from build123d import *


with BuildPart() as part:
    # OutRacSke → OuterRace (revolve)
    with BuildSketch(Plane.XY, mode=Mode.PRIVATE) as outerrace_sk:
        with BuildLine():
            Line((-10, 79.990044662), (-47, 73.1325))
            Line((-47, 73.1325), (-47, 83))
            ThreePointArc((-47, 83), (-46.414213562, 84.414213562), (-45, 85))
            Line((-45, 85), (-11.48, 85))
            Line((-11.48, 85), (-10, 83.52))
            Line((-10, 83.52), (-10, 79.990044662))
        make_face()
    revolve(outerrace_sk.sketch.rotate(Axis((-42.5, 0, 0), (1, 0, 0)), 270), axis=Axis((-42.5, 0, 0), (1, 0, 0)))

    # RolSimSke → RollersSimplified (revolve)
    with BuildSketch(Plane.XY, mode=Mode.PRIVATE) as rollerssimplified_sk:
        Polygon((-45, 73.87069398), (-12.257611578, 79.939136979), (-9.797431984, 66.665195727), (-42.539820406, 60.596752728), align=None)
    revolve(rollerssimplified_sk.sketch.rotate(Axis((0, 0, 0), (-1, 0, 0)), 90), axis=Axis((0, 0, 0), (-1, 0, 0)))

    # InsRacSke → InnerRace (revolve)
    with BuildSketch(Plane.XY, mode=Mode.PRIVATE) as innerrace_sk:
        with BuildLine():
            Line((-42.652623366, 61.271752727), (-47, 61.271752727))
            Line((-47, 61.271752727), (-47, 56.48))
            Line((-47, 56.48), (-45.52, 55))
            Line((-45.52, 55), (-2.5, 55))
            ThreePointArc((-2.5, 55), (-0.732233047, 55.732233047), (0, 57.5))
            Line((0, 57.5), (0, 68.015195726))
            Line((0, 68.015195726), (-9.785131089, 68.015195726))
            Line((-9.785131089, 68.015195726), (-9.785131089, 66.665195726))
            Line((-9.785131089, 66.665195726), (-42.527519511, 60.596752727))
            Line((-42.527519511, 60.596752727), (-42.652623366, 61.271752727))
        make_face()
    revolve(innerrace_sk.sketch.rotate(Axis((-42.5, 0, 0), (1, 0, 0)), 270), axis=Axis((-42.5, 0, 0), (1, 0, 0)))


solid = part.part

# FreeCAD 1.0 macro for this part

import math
import FreeCAD as App
import Part
import Sketcher
from FreeCAD import Vector
Q = App.Units.Quantity

doc = App.newDocument("Part")
body = doc.addObject("PartDesign::Body", "Body")

# Sketch on XY plane
sketch1 = body.newObject("Sketcher::SketchObject", "Sketch")
sketch1.AttachmentSupport = (doc.getObject("XY_Plane"), [""])
sketch1.MapMode = "FlatFace"
sketch1.addGeometry([
    Part.LineSegment(Vector(-47, 73.1325, 0), Vector(-10, 79.990045, 0)),  # 0
    Part.LineSegment(Vector(-10, 79.990045, 0), Vector(-10, 83.52, 0)),  # 1
    Part.LineSegment(Vector(-10, 83.52, 0), Vector(-11.48, 85, 0)),  # 2
    Part.LineSegment(Vector(-11.48, 85, 0), Vector(-45, 85, 0)),  # 3
    Part.ArcOfCircle(Part.Circle(Vector(-45, 83, 0), Vector(0, 0, 1), 2), math.radians(90), math.radians(180)),  # 4
    Part.LineSegment(Vector(-47, 83, 0), Vector(-47, 73.1325, 0)),  # 5
], False)
sketch1.addConstraint([
    Sketcher.Constraint("Coincident", 0, 2, 1, 1),
    Sketcher.Constraint("Coincident", 1, 2, 2, 1),
    Sketcher.Constraint("Coincident", 2, 2, 3, 1),
    Sketcher.Constraint("Tangent", 3, 2, 4, 1),
    Sketcher.Constraint("Tangent", 4, 2, 5, 1),
    Sketcher.Constraint("Coincident", 5, 2, 0, 1),
    Sketcher.Constraint("Vertical", 1),
    Sketcher.Constraint("Horizontal", 3),
    Sketcher.Constraint("Vertical", 5),
    Sketcher.Constraint("Radius", 4, Q("2 mm")),
    Sketcher.Constraint("Angle", 2, Q("135 deg")),
    Sketcher.Constraint("DistanceX", 4, 3, -1, 1, Q("45 mm")),
    Sketcher.Constraint("DistanceY", -1, 1, 4, 3, Q("83 mm")),
    Sketcher.Constraint("DistanceX", 0, 2, -1, 1, Q("10 mm")),
    Sketcher.Constraint("Angle", 0, Q("10.5 deg")),
    Sketcher.Constraint("DistanceX", 3, 2, 3, 1, Q("33.52 mm")),
    Sketcher.Constraint("DistanceY", 5, 2, 5, 1, Q("9.8675 mm")),
])
revolution = body.newObject("PartDesign::Revolution", "Revolution")
revolution.Profile = sketch1
revolution.ReferenceAxis = (sketch1, ["H_Axis"])
revolution.Angle = 360

# Sketch on XY plane
sketch2 = body.newObject("Sketcher::SketchObject", "Sketch001")
sketch2.AttachmentSupport = (doc.getObject("XY_Plane"), [""])
sketch2.MapMode = "FlatFace"
sketch2.addGeometry([
    Part.LineSegment(Vector(-12.257612, 79.939137, 0), Vector(-45, 73.870694, 0)),
    Part.LineSegment(Vector(-45, 73.870694, 0), Vector(-42.53982, 60.596753, 0)),
    Part.LineSegment(Vector(-42.53982, 60.596753, 0), Vector(-9.797432, 66.665196, 0)),
    Part.LineSegment(Vector(-9.797432, 66.665196, 0), Vector(-12.257612, 79.939137, 0)),
], False)
sketch2.addConstraint([
    Sketcher.Constraint("Coincident", 0, 2, 1, 1),
    Sketcher.Constraint("Coincident", 1, 2, 2, 1),
    Sketcher.Constraint("Coincident", 2, 2, 3, 1),
    Sketcher.Constraint("Coincident", 3, 2, 0, 1),
    Sketcher.Constraint("Perpendicular", 0, 1),
    Sketcher.Constraint("Perpendicular", 1, 2),
    Sketcher.Constraint("Perpendicular", 2, 3),
    Sketcher.Constraint("DistanceX", 0, 2, -1, 1, Q("45 mm")),
    Sketcher.Constraint("Angle", 0, Q("-169.5 deg")),
    Sketcher.Constraint("Distance", 0, Q("33.3 mm")),
    Sketcher.Constraint("Distance", 1, Q("13.5 mm")),
    Sketcher.Constraint("DistanceY", -1, 1, 0, 2, Q("73.870694 mm")),
])
revolution2 = body.newObject("PartDesign::Revolution", "Revolution001")
revolution2.Profile = sketch2
revolution2.ReferenceAxis = (sketch2, ["H_Axis"])
revolution2.Angle = 360

# Sketch on XY plane
sketch3 = body.newObject("Sketcher::SketchObject", "Sketch002")
sketch3.AttachmentSupport = (doc.getObject("XY_Plane"), [""])
sketch3.MapMode = "FlatFace"
sketch3.addGeometry([
    Part.LineSegment(Vector(-42.652623, 61.271753, 0), Vector(-47, 61.271753, 0)),  # 0
    Part.LineSegment(Vector(-47, 61.271753, 0), Vector(-47, 56.48, 0)),  # 1
    Part.LineSegment(Vector(-47, 56.48, 0), Vector(-45.52, 55, 0)),  # 2
    Part.LineSegment(Vector(-45.52, 55, 0), Vector(-2.5, 55, 0)),  # 3
    Part.ArcOfCircle(Part.Circle(Vector(-2.5, 57.5, 0), Vector(0, 0, 1), 2.5), math.radians(-90), math.radians(0)),  # 4
    Part.LineSegment(Vector(0, 57.5, 0), Vector(0, 68.015196, 0)),  # 5
    Part.LineSegment(Vector(0, 68.015196, 0), Vector(-9.785131, 68.015196, 0)),  # 6
    Part.LineSegment(Vector(-9.785131, 68.015196, 0), Vector(-9.785131, 66.665196, 0)),  # 7
    Part.LineSegment(Vector(-9.785131, 66.665196, 0), Vector(-42.52752, 60.596753, 0)),  # 8
    Part.LineSegment(Vector(-42.52752, 60.596753, 0), Vector(-42.652623, 61.271753, 0)),  # 9
], False)
sketch3.addConstraint([
    Sketcher.Constraint("Coincident", 0, 2, 1, 1),
    Sketcher.Constraint("Coincident", 1, 2, 2, 1),
    Sketcher.Constraint("Coincident", 2, 2, 3, 1),
    Sketcher.Constraint("Tangent", 3, 2, 4, 1),
    Sketcher.Constraint("Tangent", 4, 2, 5, 1),
    Sketcher.Constraint("Coincident", 5, 2, 6, 1),
    Sketcher.Constraint("Coincident", 6, 2, 7, 1),
    Sketcher.Constraint("Coincident", 7, 2, 8, 1),
    Sketcher.Constraint("Coincident", 8, 2, 9, 1),
    Sketcher.Constraint("Coincident", 9, 2, 0, 1),
    Sketcher.Constraint("Horizontal", 0),
    Sketcher.Constraint("Vertical", 1),
    Sketcher.Constraint("Horizontal", 3),
    Sketcher.Constraint("Vertical", 5),
    Sketcher.Constraint("Horizontal", 6),
    Sketcher.Constraint("Vertical", 7),
    Sketcher.Constraint("PointOnObject", 4, 2, -2),
    Sketcher.Constraint("Perpendicular", 8, 9),
    Sketcher.Constraint("Radius", 4, Q("2.5 mm")),
    Sketcher.Constraint("Angle", 2, Q("-45 deg")),
    Sketcher.Constraint("DistanceX", 0, 2, -1, 1, Q("47 mm")),
    Sketcher.Constraint("DistanceY", -1, 1, 2, 2, Q("55 mm")),
    Sketcher.Constraint("Angle", 8, Q("-169.5 deg")),
    Sketcher.Constraint("Distance", 8, Q("33.3 mm")),
    Sketcher.Constraint("DistanceX", 3, 1, 3, 2, Q("43.02 mm")),
    Sketcher.Constraint("DistanceY", 7, 2, 7, 1, Q("1.35 mm")),
    Sketcher.Constraint("DistanceY", 8, 2, 0, 2, Q("0.675 mm")),
    Sketcher.Constraint("DistanceX", 6, 2, 6, 1, Q("9.785131 mm")),
    Sketcher.Constraint("DistanceY", 1, 2, 1, 1, Q("4.791753 mm")),
])
revolution3 = body.newObject("PartDesign::Revolution", "Revolution002")
revolution3.Profile = sketch3
revolution3.ReferenceAxis = (sketch3, ["H_Axis"])
revolution3.Angle = 360

doc.recompute()
